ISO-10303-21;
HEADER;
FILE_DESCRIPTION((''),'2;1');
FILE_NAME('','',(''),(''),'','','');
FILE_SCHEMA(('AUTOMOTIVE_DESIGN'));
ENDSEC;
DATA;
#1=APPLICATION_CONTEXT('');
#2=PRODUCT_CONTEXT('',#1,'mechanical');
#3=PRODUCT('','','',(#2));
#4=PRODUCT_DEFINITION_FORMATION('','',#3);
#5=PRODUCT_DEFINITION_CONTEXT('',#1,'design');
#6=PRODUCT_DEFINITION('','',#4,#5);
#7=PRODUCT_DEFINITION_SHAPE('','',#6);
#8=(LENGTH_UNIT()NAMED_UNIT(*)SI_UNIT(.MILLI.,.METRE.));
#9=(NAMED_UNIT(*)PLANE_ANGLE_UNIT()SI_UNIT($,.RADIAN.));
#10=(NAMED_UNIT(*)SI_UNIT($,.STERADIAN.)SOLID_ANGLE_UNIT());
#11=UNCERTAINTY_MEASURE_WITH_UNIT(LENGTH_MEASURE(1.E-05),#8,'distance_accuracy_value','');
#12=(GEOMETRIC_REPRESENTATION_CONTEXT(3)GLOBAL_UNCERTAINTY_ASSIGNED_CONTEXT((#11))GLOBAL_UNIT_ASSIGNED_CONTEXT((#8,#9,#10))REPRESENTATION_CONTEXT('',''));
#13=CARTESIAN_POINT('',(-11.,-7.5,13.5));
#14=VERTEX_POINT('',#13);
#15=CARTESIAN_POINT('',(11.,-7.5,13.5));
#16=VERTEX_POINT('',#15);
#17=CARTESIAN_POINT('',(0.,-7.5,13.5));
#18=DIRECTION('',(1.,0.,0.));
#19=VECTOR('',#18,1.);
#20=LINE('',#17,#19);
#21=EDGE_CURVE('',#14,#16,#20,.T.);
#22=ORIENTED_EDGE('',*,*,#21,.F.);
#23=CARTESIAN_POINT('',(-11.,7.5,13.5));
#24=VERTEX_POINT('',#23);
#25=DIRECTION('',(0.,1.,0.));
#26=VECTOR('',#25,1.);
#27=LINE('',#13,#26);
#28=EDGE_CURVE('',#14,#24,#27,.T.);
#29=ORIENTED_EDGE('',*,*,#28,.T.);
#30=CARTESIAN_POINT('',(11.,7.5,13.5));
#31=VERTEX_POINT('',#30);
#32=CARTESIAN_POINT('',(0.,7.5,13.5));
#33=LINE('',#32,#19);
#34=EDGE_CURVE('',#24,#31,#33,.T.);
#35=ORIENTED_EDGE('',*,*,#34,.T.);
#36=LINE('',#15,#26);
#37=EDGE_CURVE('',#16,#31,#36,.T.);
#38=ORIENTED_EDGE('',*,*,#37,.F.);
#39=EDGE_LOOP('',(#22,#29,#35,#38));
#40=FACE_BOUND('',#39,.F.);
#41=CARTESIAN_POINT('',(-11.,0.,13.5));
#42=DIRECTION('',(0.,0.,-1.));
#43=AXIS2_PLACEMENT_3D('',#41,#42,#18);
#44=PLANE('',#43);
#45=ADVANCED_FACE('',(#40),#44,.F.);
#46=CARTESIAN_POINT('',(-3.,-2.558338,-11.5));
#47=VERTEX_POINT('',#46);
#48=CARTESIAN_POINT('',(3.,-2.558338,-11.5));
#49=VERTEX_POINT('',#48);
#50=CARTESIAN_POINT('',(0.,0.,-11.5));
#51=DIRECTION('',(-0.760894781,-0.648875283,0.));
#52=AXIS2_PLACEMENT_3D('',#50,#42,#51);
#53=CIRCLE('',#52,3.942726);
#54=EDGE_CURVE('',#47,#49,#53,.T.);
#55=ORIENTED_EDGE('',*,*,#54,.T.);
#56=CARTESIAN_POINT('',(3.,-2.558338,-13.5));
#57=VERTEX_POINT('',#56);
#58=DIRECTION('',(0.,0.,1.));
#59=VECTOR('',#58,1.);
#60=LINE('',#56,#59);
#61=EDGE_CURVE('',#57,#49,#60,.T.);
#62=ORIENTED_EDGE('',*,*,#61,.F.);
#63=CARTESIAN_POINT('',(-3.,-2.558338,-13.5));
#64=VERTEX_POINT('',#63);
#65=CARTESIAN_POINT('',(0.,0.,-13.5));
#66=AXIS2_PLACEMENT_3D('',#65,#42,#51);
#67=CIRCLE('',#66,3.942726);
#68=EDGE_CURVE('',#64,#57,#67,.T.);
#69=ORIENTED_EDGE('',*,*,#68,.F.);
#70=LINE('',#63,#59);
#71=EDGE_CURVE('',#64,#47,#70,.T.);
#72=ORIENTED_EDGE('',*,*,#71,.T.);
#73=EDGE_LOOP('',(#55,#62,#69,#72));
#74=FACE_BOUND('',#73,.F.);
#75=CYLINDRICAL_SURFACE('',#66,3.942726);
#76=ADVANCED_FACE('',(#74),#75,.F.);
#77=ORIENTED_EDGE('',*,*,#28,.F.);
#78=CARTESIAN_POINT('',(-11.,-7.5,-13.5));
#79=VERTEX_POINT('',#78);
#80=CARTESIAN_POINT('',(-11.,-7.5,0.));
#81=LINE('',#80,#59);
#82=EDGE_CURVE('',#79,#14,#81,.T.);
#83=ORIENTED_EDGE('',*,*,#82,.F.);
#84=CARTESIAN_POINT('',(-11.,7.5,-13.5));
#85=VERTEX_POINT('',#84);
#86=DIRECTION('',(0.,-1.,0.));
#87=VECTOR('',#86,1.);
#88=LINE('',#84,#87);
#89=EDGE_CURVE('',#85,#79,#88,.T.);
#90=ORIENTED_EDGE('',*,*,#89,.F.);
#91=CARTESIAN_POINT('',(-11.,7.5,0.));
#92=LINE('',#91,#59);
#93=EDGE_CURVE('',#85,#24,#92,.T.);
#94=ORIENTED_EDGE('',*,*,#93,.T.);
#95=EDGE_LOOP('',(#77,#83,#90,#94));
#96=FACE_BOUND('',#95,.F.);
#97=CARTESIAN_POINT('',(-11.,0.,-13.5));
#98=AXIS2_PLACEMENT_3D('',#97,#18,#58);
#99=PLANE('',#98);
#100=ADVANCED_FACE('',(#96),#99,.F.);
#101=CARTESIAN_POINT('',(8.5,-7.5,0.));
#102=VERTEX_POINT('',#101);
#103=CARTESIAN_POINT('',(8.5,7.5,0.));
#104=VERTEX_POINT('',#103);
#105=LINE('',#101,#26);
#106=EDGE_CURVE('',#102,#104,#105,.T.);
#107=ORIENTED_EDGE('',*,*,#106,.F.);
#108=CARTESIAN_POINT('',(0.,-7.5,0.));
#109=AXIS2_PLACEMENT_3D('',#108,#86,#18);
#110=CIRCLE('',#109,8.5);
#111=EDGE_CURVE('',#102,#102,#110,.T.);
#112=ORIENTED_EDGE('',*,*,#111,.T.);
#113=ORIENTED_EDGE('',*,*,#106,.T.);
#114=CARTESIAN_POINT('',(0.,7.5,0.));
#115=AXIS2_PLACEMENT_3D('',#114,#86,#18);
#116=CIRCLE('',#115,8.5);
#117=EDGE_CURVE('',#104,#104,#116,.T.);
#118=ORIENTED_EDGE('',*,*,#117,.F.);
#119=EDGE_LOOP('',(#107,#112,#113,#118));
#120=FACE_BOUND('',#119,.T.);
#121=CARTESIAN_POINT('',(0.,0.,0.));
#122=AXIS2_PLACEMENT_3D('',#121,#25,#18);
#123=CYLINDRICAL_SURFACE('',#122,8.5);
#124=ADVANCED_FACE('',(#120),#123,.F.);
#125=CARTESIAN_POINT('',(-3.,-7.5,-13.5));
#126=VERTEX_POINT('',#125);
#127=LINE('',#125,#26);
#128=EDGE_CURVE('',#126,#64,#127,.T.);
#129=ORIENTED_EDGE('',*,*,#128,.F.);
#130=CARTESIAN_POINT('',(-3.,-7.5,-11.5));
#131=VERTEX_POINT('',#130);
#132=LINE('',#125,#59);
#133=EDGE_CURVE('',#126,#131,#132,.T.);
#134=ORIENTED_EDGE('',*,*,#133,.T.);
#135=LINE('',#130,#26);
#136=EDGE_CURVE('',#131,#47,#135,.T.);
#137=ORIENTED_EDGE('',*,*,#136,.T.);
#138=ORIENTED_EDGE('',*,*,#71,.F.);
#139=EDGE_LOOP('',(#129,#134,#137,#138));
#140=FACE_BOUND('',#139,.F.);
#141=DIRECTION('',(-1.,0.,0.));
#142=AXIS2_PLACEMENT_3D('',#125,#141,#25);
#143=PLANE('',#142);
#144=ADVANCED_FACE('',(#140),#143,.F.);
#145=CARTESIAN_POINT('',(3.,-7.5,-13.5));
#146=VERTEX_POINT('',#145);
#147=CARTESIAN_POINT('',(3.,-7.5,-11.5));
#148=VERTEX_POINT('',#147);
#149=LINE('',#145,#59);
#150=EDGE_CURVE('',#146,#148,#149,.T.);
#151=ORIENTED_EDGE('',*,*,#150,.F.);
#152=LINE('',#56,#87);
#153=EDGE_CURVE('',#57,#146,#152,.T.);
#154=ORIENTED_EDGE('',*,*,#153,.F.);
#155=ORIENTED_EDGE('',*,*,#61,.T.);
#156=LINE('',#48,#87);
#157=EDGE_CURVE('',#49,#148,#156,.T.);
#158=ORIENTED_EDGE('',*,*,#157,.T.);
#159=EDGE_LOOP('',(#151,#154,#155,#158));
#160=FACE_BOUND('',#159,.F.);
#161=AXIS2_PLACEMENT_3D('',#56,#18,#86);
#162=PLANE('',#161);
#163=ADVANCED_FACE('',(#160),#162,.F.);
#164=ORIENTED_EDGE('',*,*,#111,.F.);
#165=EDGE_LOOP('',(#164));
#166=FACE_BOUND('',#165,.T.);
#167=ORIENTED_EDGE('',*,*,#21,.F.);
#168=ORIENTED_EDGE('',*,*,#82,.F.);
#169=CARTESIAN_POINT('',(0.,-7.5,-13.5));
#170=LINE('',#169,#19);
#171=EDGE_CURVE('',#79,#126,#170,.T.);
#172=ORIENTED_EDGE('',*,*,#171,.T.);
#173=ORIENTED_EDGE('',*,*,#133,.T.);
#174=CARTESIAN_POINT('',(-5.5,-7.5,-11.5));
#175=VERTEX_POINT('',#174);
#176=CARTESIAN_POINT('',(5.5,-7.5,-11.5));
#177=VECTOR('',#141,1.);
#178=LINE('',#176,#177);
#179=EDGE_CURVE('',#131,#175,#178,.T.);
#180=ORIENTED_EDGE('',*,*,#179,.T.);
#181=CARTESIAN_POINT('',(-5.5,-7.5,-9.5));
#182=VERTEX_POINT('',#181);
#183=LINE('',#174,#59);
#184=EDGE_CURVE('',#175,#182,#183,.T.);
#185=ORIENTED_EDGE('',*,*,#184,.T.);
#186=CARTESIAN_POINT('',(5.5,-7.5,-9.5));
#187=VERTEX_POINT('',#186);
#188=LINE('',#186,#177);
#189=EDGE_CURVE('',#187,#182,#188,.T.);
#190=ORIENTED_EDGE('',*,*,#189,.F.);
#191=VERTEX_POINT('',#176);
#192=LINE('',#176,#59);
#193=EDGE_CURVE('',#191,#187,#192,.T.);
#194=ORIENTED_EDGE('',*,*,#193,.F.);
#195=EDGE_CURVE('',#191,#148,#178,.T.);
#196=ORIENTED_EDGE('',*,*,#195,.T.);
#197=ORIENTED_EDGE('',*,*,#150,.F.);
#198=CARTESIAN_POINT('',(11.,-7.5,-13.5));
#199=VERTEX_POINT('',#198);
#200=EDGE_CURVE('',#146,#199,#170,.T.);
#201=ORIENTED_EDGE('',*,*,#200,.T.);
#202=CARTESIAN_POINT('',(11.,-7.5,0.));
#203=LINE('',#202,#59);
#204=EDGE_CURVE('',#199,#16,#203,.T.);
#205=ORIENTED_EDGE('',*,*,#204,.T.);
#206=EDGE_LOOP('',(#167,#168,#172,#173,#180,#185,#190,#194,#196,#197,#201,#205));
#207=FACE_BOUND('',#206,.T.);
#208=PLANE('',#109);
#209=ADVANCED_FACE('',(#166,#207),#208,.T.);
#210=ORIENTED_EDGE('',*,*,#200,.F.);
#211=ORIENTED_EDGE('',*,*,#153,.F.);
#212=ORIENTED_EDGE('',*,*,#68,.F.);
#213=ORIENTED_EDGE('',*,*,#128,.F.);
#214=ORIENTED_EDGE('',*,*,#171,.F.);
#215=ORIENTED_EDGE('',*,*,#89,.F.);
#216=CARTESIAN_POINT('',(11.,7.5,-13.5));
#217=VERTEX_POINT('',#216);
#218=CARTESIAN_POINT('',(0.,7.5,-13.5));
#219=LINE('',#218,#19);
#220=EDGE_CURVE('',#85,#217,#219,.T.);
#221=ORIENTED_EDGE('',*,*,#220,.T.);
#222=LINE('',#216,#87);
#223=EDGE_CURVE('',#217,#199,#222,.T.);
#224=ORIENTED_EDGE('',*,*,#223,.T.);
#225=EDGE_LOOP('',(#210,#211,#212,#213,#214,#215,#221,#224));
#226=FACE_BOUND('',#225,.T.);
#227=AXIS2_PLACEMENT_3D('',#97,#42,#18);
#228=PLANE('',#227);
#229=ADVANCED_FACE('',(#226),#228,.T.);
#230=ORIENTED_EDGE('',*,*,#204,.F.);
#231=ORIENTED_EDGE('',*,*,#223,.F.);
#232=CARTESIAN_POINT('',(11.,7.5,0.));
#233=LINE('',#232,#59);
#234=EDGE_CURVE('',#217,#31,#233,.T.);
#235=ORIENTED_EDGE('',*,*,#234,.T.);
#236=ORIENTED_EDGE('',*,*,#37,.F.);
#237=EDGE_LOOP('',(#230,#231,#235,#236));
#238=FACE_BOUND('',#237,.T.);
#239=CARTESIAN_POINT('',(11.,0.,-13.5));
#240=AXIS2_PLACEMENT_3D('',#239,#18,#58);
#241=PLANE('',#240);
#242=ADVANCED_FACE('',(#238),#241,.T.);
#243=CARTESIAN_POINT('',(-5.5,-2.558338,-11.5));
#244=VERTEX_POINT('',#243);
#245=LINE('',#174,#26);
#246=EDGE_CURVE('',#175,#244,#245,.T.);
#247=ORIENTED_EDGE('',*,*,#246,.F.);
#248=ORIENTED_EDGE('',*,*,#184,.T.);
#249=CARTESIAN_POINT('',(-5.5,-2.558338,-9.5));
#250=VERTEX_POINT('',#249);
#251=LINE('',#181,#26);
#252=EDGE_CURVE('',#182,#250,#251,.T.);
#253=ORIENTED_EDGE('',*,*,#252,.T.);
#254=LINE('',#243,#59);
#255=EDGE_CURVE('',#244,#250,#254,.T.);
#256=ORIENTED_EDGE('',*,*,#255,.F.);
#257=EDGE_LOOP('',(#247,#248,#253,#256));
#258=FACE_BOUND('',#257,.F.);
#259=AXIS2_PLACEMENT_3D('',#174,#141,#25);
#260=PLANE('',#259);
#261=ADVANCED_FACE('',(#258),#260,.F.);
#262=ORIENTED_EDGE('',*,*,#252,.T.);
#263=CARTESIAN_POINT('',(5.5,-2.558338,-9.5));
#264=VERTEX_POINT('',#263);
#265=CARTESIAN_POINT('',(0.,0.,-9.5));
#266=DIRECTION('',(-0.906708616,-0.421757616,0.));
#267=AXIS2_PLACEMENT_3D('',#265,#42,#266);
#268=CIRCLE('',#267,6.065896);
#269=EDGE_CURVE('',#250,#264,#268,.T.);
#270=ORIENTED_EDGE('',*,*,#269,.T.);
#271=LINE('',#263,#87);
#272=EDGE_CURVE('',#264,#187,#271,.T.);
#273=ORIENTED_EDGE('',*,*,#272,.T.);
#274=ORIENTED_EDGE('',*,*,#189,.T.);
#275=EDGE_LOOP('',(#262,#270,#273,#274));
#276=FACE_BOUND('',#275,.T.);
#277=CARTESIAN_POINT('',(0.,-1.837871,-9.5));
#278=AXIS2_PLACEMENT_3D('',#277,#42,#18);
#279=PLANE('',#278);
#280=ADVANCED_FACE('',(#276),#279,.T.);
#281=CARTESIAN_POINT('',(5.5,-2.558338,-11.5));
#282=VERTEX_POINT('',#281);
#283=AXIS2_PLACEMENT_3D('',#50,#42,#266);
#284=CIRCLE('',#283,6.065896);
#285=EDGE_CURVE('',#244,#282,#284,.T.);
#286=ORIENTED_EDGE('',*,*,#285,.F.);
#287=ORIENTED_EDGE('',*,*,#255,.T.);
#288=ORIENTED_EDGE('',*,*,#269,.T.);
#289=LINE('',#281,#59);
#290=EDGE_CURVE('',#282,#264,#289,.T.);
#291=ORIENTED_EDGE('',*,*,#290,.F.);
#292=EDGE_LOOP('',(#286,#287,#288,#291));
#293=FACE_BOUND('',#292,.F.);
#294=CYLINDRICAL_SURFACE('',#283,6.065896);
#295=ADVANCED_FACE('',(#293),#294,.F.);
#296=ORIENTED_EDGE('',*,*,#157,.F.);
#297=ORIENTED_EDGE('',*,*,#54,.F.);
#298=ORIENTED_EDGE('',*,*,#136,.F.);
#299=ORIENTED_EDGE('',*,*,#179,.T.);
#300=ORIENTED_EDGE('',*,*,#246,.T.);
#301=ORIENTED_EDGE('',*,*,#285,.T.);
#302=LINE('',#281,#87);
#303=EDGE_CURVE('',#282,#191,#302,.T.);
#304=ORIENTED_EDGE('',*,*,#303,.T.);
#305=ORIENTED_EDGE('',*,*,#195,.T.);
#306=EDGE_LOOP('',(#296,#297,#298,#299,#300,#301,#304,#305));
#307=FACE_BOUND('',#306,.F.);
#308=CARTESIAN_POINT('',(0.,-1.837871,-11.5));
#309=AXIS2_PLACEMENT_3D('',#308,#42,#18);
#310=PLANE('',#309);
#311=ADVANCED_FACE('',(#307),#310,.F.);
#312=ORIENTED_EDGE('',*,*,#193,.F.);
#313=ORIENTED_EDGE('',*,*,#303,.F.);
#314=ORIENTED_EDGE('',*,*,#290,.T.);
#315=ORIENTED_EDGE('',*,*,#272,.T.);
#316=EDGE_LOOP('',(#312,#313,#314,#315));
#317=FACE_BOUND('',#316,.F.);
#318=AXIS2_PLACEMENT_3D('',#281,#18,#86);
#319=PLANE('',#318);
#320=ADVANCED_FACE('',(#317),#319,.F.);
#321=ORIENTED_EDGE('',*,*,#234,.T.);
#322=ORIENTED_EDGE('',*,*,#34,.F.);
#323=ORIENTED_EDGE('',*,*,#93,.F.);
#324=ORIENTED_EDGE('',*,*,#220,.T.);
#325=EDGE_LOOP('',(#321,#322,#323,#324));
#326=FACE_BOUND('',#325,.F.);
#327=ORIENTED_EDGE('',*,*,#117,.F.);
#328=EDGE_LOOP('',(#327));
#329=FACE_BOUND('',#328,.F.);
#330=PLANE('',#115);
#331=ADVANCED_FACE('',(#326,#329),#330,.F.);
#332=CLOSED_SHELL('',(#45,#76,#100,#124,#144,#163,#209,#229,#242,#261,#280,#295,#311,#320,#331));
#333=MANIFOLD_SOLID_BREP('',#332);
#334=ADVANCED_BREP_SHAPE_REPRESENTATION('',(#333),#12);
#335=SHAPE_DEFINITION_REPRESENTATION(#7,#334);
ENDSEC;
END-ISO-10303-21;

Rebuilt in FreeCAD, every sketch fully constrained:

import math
import FreeCAD as App
import Part
import Sketcher
Q = App.Units.Quantity

doc = App.newDocument("Part")
params = doc.addObject("Spreadsheet::Sheet", "Params")
for row, (alias, value) in enumerate([
    ("sketch1_diameter", "17 mm"),
    ("sketch1_width", "22 mm"),
    ("sketch1_height", "27 mm"),
    ("pad1_length", "15 mm"),
    ("sketch2_width", "6 mm"),
    ("pocket1_length", "2 mm"),
    ("sketch3_width", "11 mm"),
    ("pocket2_length", "2 mm"),
], start=1):
    params.set(f"A{row}", alias)
    params.set(f"B{row}", "=" + value)
    params.setAlias(f"B{row}", alias)

body = doc.addObject("PartDesign::Body", "Body")

# Sketch on XZ plane
sketch1 = doc.addObject("Sketcher::SketchObject", "Sketch")
body.addObject(sketch1)
sketch1.AttachmentSupport = (doc.XZ_Plane, [""])
sketch1.MapMode = "FlatFace"
sketch1.addGeometry(Part.LineSegment(App.Vector(-11, 14, 0), App.Vector(-11, -14, 0)), False)
sketch1.addGeometry(Part.LineSegment(App.Vector(-11, -14, 0), App.Vector(11, -14, 0)), False)
sketch1.addGeometry(Part.LineSegment(App.Vector(11, -14, 0), App.Vector(11, 14, 0)), False)
sketch1.addGeometry(Part.LineSegment(App.Vector(11, 14, 0), App.Vector(-11, 14, 0)), False)
sketch1.addGeometry(Part.Circle(App.Vector(0, 0, 0), App.Vector(0, 0, 1), 8), False)
sketch1.addConstraint(Sketcher.Constraint("Coincident", 0, 2, 1, 1))
sketch1.addConstraint(Sketcher.Constraint("Coincident", 1, 2, 2, 1))
sketch1.addConstraint(Sketcher.Constraint("Coincident", 2, 2, 3, 1))
sketch1.addConstraint(Sketcher.Constraint("Coincident", 3, 2, 0, 1))
sketch1.addConstraint(Sketcher.Constraint("Vertical", 0))
sketch1.addConstraint(Sketcher.Constraint("Horizontal", 1))
sketch1.addConstraint(Sketcher.Constraint("Vertical", 2))
sketch1.addConstraint(Sketcher.Constraint("Horizontal", 3))
sketch1.addConstraint(Sketcher.Constraint("Coincident", 4, 3, -1, 1))
sketch1.addConstraint(Sketcher.Constraint("Symmetric", 0, 2, 2, 2, -1, 1))
sketch1.addConstraint(Sketcher.Constraint("Diameter", 4, Q("17 mm")))
sketch1.addConstraint(Sketcher.Constraint("DistanceX", 1, 1, 1, 2, Q("22 mm")))
sketch1.addConstraint(Sketcher.Constraint("DistanceY", 0, 2, 0, 1, Q("27 mm")))
sketch1.setExpression("Constraints[10]", "Params.sketch1_diameter")
sketch1.setExpression("Constraints[11]", "Params.sketch1_width")
sketch1.setExpression("Constraints[12]", "Params.sketch1_height")
pad1 = doc.addObject("PartDesign::Pad", "Pad")
body.addObject(pad1)
pad1.Profile = sketch1
pad1.setExpression("Length", "Params.pad1_length")
pad1.Midplane = True

# Sketch on XY plane
sketch2 = doc.addObject("Sketcher::SketchObject", "Sketch001")
body.addObject(sketch2)
sketch2.AttachmentSupport = (doc.XY_Plane, [""])
sketch2.MapMode = "FlatFace"
sketch2.AttachmentOffset = App.Placement(App.Vector(0, 0, -13.5), App.Rotation())
sketch2.addGeometry(Part.LineSegment(App.Vector(3, -7.5, 0), App.Vector(-3, -7.5, 0)), False)
sketch2.addGeometry(Part.LineSegment(App.Vector(-3, -7.5, 0), App.Vector(-3, -2.6, 0)), False)
sketch2.addGeometry(Part.ArcOfCircle(Part.Circle(App.Vector(0, 0, 0), App.Vector(0, 0, 1), 3.9), math.radians(-40), math.radians(220)), False)
sketch2.addGeometry(Part.LineSegment(App.Vector(3, -2.6, 0), App.Vector(3, -7.5, 0)), False)
sketch2.addConstraint(Sketcher.Constraint("Coincident", 0, 2, 1, 1))
sketch2.addConstraint(Sketcher.Constraint("Coincident", 1, 2, 2, 2))
sketch2.addConstraint(Sketcher.Constraint("Coincident", 2, 1, 3, 1))
sketch2.addConstraint(Sketcher.Constraint("Coincident", 3, 2, 0, 1))
sketch2.addConstraint(Sketcher.Constraint("Horizontal", 0))
sketch2.addConstraint(Sketcher.Constraint("Vertical", 1))
sketch2.addConstraint(Sketcher.Constraint("Vertical", 3))
sketch2.addConstraint(Sketcher.Constraint("Coincident", 2, 3, -1, 1))
sketch2.addConstraint(Sketcher.Constraint("Horizontal", 1, 2, 2, 1))
sketch2.addConstraint(Sketcher.Constraint("DistanceX", 0, 2, 0, 1, Q("6 mm")))
sketch2.addConstraint(Sketcher.Constraint("DistanceY", 0, 2, -1, 1, Q("7.5 mm")))
sketch2.addConstraint(Sketcher.Constraint("Radius", 2, Q("3.942726 mm")))
sketch2.setExpression("Constraints[9]", "Params.sketch2_width")
pocket1 = doc.addObject("PartDesign::Pocket", "Pocket")
body.addObject(pocket1)
pocket1.Profile = sketch2
pocket1.setExpression("Length", "Params.pocket1_length")
pocket1.Reversed = True

# Sketch on XY plane
sketch3 = doc.addObject("Sketcher::SketchObject", "Sketch002")
body.addObject(sketch3)
sketch3.AttachmentSupport = (doc.XY_Plane, [""])
sketch3.MapMode = "FlatFace"
sketch3.AttachmentOffset = App.Placement(App.Vector(0, 0, -11.5), App.Rotation())
sketch3.addGeometry(Part.LineSegment(App.Vector(5.5, -7.5, 0), App.Vector(-5.5, -7.5, 0)), False)
sketch3.addGeometry(Part.LineSegment(App.Vector(-5.5, -7.5, 0), App.Vector(-5.5, -2.6, 0)), False)
sketch3.addGeometry(Part.ArcOfCircle(Part.Circle(App.Vector(0, 0, 0), App.Vector(0, 0, 1), 6.1), math.radians(-25), math.radians(205)), False)
sketch3.addGeometry(Part.LineSegment(App.Vector(5.5, -2.6, 0), App.Vector(5.5, -7.5, 0)), False)
sketch3.addConstraint(Sketcher.Constraint("Coincident", 0, 2, 1, 1))
sketch3.addConstraint(Sketcher.Constraint("Coincident", 1, 2, 2, 2))
sketch3.addConstraint(Sketcher.Constraint("Coincident", 2, 1, 3, 1))
sketch3.addConstraint(Sketcher.Constraint("Coincident", 3, 2, 0, 1))
sketch3.addConstraint(Sketcher.Constraint("Horizontal", 0))
sketch3.addConstraint(Sketcher.Constraint("Vertical", 1))
sketch3.addConstraint(Sketcher.Constraint("Vertical", 3))
sketch3.addConstraint(Sketcher.Constraint("Coincident", 2, 3, -1, 1))
sketch3.addConstraint(Sketcher.Constraint("Horizontal", 1, 2, 2, 1))
sketch3.addConstraint(Sketcher.Constraint("DistanceX", 0, 2, 0, 1, Q("11 mm")))
sketch3.addConstraint(Sketcher.Constraint("DistanceY", 0, 2, -1, 1, Q("7.5 mm")))
sketch3.addConstraint(Sketcher.Constraint("Radius", 2, Q("6.065896 mm")))
sketch3.setExpression("Constraints[9]", "Params.sketch3_width")
pocket2 = doc.addObject("PartDesign::Pocket", "Pocket001")
body.addObject(pocket2)
pocket2.Profile = sketch3
pocket2.setExpression("Length", "Params.pocket2_length")
pocket2.Reversed = True

doc.recompute()
